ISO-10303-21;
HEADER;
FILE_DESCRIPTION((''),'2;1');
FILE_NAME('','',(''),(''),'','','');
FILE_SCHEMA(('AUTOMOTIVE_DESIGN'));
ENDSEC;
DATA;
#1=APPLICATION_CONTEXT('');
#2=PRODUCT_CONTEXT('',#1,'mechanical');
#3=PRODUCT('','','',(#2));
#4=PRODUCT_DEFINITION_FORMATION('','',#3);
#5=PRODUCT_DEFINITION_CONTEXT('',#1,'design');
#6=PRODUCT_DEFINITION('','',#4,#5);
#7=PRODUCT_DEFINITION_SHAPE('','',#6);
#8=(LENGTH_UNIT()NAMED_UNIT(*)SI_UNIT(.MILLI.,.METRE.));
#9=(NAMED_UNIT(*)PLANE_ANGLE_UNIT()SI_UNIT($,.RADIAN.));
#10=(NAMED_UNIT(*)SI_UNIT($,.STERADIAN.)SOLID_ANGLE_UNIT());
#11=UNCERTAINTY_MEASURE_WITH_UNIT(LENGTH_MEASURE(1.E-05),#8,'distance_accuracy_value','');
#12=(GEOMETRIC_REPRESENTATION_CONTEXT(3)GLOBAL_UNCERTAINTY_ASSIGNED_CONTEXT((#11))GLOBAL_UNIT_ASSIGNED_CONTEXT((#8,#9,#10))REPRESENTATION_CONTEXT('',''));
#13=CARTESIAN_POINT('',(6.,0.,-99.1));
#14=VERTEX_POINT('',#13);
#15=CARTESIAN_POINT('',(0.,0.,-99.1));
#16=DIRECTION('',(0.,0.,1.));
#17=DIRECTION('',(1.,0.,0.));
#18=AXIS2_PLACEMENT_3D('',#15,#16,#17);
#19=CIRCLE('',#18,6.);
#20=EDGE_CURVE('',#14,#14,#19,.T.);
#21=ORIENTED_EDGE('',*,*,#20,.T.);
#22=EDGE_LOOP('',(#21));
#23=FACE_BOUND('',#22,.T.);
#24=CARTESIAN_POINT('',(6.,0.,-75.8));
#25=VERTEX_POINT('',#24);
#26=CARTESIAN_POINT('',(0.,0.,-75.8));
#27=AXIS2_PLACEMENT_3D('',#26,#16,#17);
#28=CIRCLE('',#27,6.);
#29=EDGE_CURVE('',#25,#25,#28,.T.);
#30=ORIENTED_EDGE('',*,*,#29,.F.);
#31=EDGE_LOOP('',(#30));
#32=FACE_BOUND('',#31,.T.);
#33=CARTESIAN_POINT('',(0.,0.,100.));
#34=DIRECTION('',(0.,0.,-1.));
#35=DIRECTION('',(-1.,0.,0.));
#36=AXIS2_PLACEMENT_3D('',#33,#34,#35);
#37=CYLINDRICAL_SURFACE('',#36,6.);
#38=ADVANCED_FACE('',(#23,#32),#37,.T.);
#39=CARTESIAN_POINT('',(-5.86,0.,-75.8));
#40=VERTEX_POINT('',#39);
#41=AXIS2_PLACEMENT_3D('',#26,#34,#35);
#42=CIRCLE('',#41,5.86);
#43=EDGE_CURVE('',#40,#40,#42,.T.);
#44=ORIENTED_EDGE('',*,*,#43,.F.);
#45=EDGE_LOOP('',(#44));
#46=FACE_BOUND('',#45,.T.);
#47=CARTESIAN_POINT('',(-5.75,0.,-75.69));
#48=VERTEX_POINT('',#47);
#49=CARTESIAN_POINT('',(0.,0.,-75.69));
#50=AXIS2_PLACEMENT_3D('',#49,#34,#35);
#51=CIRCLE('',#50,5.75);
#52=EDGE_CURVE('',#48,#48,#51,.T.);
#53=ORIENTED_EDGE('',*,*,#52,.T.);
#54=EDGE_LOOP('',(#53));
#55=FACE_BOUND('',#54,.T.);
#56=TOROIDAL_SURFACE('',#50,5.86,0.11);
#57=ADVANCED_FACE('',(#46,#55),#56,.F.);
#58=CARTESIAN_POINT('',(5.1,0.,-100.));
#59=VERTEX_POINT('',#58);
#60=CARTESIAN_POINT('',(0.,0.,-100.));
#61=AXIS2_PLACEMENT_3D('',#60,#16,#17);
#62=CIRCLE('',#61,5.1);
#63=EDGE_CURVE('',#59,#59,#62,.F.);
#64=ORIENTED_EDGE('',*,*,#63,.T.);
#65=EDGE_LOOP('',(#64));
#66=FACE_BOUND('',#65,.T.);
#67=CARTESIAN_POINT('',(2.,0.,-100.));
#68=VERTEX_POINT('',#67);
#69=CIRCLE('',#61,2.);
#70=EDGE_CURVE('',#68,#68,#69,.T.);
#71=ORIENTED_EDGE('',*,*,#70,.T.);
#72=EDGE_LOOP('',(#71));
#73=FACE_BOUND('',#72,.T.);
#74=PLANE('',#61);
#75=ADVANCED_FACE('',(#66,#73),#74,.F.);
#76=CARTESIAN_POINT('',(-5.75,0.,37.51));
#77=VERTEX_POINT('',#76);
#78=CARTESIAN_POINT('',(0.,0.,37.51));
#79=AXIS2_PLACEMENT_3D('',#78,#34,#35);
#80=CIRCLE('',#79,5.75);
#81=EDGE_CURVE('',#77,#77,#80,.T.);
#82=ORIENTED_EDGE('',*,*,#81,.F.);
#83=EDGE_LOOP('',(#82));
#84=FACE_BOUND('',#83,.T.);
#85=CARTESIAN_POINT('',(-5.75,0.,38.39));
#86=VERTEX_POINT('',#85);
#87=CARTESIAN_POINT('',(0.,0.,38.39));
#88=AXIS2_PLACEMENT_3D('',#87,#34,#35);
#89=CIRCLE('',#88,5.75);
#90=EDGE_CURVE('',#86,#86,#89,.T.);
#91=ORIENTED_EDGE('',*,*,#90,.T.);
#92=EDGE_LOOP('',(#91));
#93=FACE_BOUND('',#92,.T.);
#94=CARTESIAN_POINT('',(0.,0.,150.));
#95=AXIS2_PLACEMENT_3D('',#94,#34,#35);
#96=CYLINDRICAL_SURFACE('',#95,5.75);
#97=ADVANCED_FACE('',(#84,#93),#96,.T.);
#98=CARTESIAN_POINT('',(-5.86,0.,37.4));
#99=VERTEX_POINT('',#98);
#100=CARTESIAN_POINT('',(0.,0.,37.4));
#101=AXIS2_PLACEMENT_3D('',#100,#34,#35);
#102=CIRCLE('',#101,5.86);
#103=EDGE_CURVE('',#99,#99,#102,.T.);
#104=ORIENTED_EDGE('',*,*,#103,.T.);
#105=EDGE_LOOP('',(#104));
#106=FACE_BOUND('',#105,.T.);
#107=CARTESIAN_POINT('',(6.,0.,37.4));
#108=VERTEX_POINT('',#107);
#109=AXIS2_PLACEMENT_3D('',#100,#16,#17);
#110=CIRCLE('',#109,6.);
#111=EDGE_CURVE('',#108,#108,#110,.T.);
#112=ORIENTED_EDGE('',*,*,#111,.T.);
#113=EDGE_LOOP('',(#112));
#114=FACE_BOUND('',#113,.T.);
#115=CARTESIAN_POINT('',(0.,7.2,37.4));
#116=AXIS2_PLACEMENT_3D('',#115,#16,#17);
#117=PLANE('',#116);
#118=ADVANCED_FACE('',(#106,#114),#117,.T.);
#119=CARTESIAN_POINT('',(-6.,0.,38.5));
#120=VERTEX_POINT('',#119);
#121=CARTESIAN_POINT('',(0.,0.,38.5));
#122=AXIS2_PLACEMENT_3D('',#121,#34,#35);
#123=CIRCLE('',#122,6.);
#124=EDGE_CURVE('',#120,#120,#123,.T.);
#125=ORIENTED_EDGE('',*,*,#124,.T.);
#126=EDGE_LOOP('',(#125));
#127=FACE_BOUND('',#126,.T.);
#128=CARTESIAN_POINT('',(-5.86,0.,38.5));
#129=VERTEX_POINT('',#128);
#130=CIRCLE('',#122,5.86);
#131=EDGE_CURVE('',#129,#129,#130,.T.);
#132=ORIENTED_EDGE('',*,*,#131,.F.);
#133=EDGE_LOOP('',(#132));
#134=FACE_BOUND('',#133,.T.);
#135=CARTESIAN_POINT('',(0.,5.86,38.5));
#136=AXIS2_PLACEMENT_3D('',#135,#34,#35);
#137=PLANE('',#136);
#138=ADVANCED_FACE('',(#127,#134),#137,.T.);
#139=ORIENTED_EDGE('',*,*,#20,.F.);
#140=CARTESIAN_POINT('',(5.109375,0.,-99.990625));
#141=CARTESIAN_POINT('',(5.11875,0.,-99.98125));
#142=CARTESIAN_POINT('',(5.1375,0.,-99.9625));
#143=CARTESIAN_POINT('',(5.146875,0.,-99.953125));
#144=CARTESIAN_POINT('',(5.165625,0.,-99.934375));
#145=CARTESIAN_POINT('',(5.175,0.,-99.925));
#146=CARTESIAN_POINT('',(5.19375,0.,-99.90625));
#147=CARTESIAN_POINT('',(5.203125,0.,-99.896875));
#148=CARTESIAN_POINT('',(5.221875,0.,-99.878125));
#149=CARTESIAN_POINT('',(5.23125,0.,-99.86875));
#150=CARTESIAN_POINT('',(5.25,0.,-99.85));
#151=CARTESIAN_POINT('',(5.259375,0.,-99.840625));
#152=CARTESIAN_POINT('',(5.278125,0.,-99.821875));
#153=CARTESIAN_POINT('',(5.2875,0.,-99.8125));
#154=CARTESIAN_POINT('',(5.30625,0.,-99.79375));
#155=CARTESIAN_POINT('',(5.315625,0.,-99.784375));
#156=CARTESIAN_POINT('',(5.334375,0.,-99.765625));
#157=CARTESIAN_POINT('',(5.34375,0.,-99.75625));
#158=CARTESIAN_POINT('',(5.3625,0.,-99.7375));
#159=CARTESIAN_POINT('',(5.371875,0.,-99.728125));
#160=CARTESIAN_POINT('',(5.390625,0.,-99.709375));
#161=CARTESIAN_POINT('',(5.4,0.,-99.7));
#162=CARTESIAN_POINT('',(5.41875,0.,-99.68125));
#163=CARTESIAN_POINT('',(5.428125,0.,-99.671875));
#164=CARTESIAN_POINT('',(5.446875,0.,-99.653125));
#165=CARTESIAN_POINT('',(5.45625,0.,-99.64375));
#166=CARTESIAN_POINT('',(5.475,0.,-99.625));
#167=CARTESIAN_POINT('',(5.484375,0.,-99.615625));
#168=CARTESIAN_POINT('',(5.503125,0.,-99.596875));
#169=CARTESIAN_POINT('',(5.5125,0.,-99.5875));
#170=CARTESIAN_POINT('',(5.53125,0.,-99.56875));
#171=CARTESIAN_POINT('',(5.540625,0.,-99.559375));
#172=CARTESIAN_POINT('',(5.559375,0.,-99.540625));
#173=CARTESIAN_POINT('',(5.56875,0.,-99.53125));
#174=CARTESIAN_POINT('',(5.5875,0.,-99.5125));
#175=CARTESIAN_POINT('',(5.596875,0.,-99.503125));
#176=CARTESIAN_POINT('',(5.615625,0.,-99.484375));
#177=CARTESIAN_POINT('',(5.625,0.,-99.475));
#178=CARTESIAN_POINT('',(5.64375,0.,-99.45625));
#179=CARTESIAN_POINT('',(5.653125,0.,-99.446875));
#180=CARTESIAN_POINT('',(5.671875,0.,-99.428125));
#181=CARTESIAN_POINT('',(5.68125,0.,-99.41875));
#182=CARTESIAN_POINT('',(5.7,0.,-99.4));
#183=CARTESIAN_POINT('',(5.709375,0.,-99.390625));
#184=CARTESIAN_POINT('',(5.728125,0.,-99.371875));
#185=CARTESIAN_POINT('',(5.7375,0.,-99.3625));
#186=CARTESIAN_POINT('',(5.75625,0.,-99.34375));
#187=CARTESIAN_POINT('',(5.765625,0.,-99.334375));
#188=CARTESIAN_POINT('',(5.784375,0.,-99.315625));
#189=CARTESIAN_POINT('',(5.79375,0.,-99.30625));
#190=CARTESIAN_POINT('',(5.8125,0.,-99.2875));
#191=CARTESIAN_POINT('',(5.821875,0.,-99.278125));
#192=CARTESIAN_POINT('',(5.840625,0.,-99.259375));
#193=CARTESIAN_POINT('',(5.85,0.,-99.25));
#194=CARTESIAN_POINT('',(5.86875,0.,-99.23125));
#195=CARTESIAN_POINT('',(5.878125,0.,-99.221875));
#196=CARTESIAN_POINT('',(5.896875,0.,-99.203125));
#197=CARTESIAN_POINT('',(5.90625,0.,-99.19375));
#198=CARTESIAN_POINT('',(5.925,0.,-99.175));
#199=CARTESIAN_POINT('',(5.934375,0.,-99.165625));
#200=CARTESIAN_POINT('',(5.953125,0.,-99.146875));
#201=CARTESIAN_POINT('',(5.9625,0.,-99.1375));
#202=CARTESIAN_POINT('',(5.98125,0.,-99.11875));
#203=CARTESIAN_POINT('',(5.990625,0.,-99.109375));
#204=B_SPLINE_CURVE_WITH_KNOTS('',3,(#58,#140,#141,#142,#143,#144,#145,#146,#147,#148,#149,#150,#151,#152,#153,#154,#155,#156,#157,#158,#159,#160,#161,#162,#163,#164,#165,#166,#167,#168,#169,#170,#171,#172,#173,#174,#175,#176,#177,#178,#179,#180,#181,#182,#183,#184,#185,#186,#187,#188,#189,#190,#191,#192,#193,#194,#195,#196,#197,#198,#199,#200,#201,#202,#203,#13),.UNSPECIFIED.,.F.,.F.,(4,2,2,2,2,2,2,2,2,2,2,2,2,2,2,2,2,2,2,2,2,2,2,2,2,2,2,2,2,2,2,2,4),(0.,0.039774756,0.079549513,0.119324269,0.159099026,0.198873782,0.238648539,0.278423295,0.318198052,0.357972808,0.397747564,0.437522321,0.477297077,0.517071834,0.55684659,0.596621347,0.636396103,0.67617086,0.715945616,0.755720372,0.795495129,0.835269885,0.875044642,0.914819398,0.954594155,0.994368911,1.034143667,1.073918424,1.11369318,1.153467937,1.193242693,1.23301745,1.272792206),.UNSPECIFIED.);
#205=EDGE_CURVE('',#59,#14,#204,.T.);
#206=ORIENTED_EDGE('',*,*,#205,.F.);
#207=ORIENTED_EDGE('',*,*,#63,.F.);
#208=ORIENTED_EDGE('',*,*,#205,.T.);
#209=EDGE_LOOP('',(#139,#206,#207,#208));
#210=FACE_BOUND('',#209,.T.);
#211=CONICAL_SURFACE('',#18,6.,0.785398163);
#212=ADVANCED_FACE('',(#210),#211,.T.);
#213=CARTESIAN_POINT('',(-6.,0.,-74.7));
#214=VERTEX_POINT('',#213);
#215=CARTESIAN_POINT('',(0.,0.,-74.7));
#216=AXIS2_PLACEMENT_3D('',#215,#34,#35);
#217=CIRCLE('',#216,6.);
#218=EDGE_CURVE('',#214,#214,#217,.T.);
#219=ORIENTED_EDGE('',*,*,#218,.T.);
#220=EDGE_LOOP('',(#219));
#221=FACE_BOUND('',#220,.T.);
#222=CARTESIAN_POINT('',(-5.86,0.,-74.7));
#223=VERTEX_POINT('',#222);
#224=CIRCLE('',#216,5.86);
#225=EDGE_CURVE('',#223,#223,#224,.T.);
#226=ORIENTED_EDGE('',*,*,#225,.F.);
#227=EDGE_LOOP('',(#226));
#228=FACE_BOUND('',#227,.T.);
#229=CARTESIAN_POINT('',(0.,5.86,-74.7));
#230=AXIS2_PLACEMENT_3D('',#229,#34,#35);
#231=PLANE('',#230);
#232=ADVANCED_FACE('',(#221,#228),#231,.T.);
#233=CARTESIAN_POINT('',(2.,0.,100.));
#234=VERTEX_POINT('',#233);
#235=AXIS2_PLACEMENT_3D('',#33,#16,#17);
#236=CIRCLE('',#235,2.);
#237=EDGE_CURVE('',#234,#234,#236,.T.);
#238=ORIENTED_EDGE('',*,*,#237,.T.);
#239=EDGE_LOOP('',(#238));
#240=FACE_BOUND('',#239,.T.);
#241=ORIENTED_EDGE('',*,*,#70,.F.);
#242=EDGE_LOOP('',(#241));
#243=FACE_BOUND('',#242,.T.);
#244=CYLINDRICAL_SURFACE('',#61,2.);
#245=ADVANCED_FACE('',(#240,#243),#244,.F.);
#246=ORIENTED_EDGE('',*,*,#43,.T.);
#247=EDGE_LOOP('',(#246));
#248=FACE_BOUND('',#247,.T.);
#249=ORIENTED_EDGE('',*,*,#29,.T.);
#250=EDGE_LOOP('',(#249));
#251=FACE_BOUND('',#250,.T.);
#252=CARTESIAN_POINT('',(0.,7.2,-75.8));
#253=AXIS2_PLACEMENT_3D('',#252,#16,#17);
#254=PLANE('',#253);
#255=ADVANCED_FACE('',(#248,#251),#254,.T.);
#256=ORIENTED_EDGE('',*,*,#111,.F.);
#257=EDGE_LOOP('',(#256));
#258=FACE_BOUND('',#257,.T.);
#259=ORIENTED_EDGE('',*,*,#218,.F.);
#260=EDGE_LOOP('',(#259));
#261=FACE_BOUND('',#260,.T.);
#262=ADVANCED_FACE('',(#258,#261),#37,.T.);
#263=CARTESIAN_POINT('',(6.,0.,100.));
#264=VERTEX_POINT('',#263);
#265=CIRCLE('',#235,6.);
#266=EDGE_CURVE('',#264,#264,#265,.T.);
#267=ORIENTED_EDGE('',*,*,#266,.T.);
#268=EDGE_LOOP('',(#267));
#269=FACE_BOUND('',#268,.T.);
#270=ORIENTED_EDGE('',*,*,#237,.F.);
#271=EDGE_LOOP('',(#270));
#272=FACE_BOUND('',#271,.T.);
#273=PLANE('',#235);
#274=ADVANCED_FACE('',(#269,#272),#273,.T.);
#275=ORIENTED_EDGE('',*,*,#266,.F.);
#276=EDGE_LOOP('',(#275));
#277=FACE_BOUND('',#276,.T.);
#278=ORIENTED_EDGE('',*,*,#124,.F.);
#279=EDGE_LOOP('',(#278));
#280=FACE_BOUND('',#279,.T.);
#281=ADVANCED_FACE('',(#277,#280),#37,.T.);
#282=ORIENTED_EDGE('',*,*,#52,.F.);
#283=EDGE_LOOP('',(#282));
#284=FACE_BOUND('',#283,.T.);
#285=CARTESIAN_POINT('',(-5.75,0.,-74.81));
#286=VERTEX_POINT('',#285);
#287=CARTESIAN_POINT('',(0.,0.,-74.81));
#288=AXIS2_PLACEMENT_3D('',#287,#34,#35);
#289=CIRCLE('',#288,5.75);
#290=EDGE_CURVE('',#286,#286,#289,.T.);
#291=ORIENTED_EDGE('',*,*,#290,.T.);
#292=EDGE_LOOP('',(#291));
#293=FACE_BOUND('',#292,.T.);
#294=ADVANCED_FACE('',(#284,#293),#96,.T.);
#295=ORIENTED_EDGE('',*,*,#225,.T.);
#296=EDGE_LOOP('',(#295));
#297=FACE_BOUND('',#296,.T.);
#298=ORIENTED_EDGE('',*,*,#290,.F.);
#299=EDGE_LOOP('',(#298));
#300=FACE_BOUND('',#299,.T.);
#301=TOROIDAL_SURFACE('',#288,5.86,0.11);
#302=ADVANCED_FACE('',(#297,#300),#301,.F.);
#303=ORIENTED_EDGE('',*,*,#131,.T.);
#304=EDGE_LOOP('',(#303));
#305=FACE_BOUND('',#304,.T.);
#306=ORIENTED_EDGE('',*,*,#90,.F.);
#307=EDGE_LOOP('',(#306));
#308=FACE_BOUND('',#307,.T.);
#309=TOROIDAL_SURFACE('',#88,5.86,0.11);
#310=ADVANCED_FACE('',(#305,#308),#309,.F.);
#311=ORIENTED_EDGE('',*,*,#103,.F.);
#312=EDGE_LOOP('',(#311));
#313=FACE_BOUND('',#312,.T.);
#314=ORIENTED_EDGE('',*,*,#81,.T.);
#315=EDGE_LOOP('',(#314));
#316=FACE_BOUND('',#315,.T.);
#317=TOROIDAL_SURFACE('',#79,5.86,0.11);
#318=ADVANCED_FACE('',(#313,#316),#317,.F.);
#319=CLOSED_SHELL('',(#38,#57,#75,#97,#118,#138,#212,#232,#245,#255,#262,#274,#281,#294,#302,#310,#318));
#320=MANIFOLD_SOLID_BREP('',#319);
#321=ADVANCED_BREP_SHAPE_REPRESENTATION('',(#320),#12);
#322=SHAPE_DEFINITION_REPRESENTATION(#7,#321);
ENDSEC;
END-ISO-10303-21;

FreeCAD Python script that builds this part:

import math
import FreeCAD as App
import Part
import Sketcher

V = App.Vector
Q = App.Units.Quantity


def edges_at(feature, points):
    """Names of the edges that pass closest to the given points."""
    edges = feature.Shape.Edges
    near = lambda p: min(range(len(edges)), key=lambda i: edges[i].distToShape(Part.Vertex(*p))[0])
    return sorted({f"Edge{near(p) + 1}" for p in points})

doc = App.newDocument("Part")
body = doc.addObject("PartDesign::Body", "Body")

# Sketch on XY plane
sketch1 = doc.addObject("Sketcher::SketchObject", "Sketch")
body.addObject(sketch1)
sketch1.AttachmentSupport = (doc.XY_Plane, [""])
sketch1.MapMode = "FlatFace"
sketch1.addGeometry(Part.Circle(V(0, 0, 0), V(0, 0, 1), 6), False)
sketch1.addConstraint([
    Sketcher.Constraint("Coincident", 0, 3, -1, 1),
    Sketcher.Constraint("Diameter", 0, Q("12 mm")),
])
pad1 = doc.addObject("PartDesign::Pad", "Pad")
body.addObject(pad1)
pad1.Profile = sketch1
pad1.Length = 200
pad1.Midplane = True
doc.recompute()

chamfer = doc.addObject("PartDesign::Chamfer", "Chamfer")
body.addObject(chamfer)
chamfer.Base = (pad1, edges_at(pad1, [(-6, 0, -100)]))
chamfer.Size = 0.9

# Sketch on XY plane
sketch2 = doc.addObject("Sketcher::SketchObject", "Sketch001")
body.addObject(sketch2)
sketch2.AttachmentSupport = (doc.XY_Plane, [""])
sketch2.MapMode = "FlatFace"
sketch2.addGeometry(Part.Circle(V(0, 0, 0), V(0, 0, 1), 2), False)
sketch2.addConstraint([
    Sketcher.Constraint("Coincident", 0, 3, -1, 1),
    Sketcher.Constraint("Diameter", 0, Q("4 mm")),
])
pocket1 = doc.addObject("PartDesign::Pocket", "Pocket")
body.addObject(pocket1)
pocket1.Profile = sketch2
pocket1.Type = "ThroughAll"
pocket1.Midplane = True

# Sketch on YZ plane
sketch3 = doc.addObject("Sketcher::SketchObject", "Sketch002")
body.addObject(sketch3)
sketch3.AttachmentSupport = (doc.YZ_Plane, [""])
sketch3.MapMode = "FlatFace"
sketch3.addGeometry([
    Part.LineSegment(V(5.86, 38.5, 0), V(7.2, 38.5, 0)),  # 0
    Part.LineSegment(V(7.2, 38.5, 0), V(7.2, 37.4, 0)),  # 1
    Part.LineSegment(V(7.2, 37.4, 0), V(5.86, 37.4, 0)),  # 2
    Part.ArcOfCircle(Part.Circle(V(5.86, 37.51, 0), V(0, 0, 1), 0.11), math.radians(180), math.radians(270)),  # 3
    Part.LineSegment(V(5.75, 37.51, 0), V(5.75, 38.39, 0)),  # 4
    Part.ArcOfCircle(Part.Circle(V(5.86, 38.39, 0), V(0, 0, 1), 0.11), math.radians(90), math.radians(180)),  # 5
], False)
sketch3.addConstraint([
    Sketcher.Constraint("Coincident", 0, 2, 1, 1),
    Sketcher.Constraint("Coincident", 1, 2, 2, 1),
    Sketcher.Constraint("Tangent", 2, 2, 3, 2),
    Sketcher.Constraint("Tangent", 3, 1, 4, 1),
    Sketcher.Constraint("Tangent", 4, 2, 5, 2),
    Sketcher.Constraint("Tangent", 5, 1, 0, 1),
    Sketcher.Constraint("Horizontal", 0),
    Sketcher.Constraint("Vertical", 1),
    Sketcher.Constraint("Horizontal", 2),
    Sketcher.Constraint("Vertical", 4),
    Sketcher.Constraint("Equal", 3, 5),
    Sketcher.Constraint("Radius", 3, Q("0.11 mm")),
    Sketcher.Constraint("DistanceY", 1, 2, 1, 1, Q("1.1 mm")),
    Sketcher.Constraint("DistanceX", 0, 1, 0, 2, Q("1.34 mm")),
    Sketcher.Constraint("DistanceX", -1, 1, 0, 2, Q("7.2 mm")),
    Sketcher.Constraint("DistanceY", -1, 1, 0, 2, Q("38.5 mm")),
])
groove = doc.addObject("PartDesign::Groove", "Groove")
body.addObject(groove)
groove.Profile = sketch3
groove.ReferenceAxis = (sketch3, ["V_Axis"])
groove.Angle = 360

# Sketch on YZ plane
sketch4 = doc.addObject("Sketcher::SketchObject", "Sketch003")
body.addObject(sketch4)
sketch4.AttachmentSupport = (doc.YZ_Plane, [""])
sketch4.MapMode = "FlatFace"
sketch4.addGeometry([
    Part.LineSegment(V(5.86, -74.7, 0), V(7.2, -74.7, 0)),  # 0
    Part.LineSegment(V(7.2, -74.7, 0), V(7.2, -75.8, 0)),  # 1
    Part.LineSegment(V(7.2, -75.8, 0), V(5.86, -75.8, 0)),  # 2
    Part.ArcOfCircle(Part.Circle(V(5.86, -75.69, 0), V(0, 0, 1), 0.11), math.radians(180), math.radians(270)),  # 3
    Part.LineSegment(V(5.75, -75.69, 0), V(5.75, -74.81, 0)),  # 4
    Part.ArcOfCircle(Part.Circle(V(5.86, -74.81, 0), V(0, 0, 1), 0.11), math.radians(90), math.radians(180)),  # 5
], False)
sketch4.addConstraint([
    Sketcher.Constraint("Coincident", 0, 2, 1, 1),
    Sketcher.Constraint("Coincident", 1, 2, 2, 1),
    Sketcher.Constraint("Tangent", 2, 2, 3, 2),
    Sketcher.Constraint("Tangent", 3, 1, 4, 1),
    Sketcher.Constraint("Tangent", 4, 2, 5, 2),
    Sketcher.Constraint("Tangent", 5, 1, 0, 1),
    Sketcher.Constraint("Horizontal", 0),
    Sketcher.Constraint("Vertical", 1),
    Sketcher.Constraint("Horizontal", 2),
    Sketcher.Constraint("Vertical", 4),
    Sketcher.Constraint("Equal", 3, 5),
    Sketcher.Constraint("Radius", 3, Q("0.11 mm")),
    Sketcher.Constraint("DistanceY", 1, 2, 1, 1, Q("1.1 mm")),
    Sketcher.Constraint("DistanceX", 0, 1, 0, 2, Q("1.34 mm")),
    Sketcher.Constraint("DistanceX", -1, 1, 0, 2, Q("7.2 mm")),
    Sketcher.Constraint("DistanceY", 0, 2, -1, 1, Q("74.7 mm")),
])
groove2 = doc.addObject("PartDesign::Groove", "Groove001")
body.addObject(groove2)
groove2.Profile = sketch4
groove2.ReferenceAxis = (sketch4, ["V_Axis"])
groove2.Angle = 360

doc.recompute()
